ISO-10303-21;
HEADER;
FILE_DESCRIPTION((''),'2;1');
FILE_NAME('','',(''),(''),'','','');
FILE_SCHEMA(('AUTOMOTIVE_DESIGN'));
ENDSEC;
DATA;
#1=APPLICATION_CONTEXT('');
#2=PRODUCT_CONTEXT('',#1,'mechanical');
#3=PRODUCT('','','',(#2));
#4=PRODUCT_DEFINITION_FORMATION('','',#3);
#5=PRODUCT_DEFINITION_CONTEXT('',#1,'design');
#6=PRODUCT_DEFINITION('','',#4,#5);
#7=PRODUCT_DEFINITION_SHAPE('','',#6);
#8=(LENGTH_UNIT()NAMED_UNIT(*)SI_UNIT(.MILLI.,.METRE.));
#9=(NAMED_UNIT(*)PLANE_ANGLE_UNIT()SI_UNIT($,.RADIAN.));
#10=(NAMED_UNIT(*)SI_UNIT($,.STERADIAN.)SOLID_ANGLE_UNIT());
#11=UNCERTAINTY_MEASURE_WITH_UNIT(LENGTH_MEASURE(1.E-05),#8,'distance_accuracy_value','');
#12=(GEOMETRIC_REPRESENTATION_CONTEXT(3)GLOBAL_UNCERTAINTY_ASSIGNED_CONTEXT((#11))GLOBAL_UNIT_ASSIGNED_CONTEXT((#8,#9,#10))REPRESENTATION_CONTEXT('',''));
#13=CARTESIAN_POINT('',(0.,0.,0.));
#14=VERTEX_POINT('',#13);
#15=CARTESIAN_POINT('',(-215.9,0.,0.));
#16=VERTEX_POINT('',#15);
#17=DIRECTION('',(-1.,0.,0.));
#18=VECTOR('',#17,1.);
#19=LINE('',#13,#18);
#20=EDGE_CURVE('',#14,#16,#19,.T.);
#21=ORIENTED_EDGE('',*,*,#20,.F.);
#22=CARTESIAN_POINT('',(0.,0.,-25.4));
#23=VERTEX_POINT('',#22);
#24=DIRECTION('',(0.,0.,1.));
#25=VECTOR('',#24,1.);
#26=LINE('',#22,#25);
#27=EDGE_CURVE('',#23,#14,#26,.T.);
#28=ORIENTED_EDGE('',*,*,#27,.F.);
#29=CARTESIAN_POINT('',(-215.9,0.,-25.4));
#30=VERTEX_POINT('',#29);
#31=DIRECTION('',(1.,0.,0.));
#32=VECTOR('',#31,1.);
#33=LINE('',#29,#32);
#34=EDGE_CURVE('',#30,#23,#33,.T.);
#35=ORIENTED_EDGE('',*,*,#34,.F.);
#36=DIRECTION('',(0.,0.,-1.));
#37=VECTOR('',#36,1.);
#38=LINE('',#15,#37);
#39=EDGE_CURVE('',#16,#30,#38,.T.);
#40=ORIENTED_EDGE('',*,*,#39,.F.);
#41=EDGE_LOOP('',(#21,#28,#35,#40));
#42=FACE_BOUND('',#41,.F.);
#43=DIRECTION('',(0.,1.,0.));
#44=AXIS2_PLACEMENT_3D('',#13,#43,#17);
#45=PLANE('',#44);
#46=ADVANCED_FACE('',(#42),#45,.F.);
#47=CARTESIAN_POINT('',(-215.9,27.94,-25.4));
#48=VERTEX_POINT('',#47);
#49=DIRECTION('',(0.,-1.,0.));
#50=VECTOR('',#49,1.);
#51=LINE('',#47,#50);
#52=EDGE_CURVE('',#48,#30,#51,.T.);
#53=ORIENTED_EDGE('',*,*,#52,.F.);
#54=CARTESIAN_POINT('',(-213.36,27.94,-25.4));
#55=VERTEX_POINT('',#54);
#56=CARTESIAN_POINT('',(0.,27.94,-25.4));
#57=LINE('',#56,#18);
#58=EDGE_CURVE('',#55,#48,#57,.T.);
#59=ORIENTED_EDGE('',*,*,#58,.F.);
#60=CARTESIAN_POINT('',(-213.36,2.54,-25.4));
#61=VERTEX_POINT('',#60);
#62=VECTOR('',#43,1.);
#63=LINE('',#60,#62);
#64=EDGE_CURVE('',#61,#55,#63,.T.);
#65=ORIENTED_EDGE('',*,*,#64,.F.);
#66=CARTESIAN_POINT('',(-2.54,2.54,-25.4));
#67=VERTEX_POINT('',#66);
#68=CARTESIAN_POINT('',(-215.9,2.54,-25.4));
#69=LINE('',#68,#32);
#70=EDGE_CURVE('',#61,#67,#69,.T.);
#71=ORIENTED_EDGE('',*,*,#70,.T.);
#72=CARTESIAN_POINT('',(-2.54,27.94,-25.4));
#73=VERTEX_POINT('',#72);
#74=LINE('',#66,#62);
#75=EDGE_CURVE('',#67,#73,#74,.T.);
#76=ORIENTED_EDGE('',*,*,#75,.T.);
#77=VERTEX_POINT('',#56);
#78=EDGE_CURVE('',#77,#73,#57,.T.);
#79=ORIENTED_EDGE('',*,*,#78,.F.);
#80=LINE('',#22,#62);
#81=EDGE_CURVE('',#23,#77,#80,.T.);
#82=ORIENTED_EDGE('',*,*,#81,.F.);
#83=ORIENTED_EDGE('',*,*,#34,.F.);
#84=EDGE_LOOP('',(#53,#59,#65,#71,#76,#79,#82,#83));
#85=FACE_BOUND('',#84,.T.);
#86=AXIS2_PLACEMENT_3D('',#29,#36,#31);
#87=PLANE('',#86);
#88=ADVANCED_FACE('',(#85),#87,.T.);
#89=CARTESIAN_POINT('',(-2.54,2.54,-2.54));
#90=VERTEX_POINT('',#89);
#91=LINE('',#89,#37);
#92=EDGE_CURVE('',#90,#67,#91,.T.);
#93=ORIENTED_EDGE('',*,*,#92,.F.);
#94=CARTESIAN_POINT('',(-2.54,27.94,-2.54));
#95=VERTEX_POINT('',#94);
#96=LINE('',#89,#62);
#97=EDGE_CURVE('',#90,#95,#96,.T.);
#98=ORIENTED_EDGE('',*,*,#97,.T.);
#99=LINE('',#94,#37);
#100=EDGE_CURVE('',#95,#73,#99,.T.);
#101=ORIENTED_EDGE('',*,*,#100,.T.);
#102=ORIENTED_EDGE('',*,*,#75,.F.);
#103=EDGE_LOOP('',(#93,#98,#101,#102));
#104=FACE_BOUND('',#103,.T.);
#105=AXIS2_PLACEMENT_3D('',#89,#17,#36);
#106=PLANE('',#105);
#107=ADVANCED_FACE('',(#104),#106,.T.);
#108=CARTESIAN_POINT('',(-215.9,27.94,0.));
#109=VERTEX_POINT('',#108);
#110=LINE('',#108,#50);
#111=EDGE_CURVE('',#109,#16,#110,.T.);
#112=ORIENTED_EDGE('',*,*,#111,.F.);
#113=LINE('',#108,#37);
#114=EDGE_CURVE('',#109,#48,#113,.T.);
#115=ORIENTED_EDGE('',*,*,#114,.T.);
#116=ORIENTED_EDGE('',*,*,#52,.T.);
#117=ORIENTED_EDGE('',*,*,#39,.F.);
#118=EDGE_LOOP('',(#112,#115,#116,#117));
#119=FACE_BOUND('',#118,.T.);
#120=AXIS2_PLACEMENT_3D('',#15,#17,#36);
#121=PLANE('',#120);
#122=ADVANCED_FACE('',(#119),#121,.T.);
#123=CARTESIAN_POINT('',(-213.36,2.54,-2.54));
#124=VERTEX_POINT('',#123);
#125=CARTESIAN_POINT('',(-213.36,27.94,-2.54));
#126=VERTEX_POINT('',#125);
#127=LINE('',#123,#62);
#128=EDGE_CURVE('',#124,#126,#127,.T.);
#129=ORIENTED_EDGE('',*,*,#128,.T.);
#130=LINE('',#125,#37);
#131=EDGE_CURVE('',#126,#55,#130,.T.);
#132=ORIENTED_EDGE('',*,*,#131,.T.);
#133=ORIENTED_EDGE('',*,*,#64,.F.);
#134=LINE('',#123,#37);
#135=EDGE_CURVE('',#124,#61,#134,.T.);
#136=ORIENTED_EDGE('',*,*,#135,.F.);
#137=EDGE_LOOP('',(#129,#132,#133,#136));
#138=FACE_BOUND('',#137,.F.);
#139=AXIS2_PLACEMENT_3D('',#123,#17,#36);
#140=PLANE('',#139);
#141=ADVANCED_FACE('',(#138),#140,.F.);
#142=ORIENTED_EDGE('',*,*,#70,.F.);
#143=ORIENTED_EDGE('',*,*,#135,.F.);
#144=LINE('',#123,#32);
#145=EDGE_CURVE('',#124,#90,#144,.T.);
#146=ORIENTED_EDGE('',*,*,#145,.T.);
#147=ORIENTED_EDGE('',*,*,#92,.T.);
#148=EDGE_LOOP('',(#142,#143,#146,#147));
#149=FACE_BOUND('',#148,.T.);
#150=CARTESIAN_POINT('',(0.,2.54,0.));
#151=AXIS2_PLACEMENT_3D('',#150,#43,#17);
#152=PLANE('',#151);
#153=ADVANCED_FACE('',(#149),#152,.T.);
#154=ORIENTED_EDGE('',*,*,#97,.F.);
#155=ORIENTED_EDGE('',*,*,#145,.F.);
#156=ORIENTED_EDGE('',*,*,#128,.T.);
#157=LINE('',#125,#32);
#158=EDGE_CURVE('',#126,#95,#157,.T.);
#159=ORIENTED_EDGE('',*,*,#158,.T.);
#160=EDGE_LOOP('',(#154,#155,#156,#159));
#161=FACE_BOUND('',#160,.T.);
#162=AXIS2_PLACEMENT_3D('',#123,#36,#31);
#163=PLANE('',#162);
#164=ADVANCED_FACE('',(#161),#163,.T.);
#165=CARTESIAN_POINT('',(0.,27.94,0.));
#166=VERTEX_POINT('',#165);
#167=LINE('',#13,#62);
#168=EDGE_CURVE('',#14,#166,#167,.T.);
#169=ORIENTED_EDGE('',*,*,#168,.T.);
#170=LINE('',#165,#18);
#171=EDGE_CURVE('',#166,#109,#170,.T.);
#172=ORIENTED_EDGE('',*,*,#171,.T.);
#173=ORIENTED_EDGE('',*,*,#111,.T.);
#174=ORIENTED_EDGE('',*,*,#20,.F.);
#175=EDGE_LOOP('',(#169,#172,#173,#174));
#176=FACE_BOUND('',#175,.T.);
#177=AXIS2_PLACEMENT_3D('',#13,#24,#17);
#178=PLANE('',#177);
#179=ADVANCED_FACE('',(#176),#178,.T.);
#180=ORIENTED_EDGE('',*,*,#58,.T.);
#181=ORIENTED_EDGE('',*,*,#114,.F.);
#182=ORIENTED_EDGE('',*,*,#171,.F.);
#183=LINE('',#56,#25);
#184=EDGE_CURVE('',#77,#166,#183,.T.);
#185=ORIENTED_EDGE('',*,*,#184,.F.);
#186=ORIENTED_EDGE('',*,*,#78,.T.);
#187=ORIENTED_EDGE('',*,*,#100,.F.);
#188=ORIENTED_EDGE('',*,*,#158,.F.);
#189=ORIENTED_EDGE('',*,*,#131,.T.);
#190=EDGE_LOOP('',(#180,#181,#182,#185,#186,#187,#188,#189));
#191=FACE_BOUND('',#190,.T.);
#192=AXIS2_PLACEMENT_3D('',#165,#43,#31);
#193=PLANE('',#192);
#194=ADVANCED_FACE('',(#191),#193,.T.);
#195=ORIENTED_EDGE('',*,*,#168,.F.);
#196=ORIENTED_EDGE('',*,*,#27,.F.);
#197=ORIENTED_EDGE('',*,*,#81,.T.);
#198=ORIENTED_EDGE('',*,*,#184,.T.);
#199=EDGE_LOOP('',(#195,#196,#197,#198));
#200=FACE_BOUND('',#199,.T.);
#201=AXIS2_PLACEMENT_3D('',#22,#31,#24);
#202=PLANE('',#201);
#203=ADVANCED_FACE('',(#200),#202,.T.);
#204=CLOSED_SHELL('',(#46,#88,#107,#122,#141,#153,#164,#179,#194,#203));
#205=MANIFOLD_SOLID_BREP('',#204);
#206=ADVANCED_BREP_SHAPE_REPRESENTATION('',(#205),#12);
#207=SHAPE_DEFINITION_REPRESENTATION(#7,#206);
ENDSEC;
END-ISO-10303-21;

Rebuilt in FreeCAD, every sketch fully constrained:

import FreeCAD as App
import Part
import Sketcher
Q = App.Units.Quantity


def add_polygon(sketch, points):
    """Adds a closed chain of lines whose ends are joined by coincident constraints."""
    first, n = sketch.GeometryCount, len(points)
    for a, b in zip(points, points[1:] + points[:1]):
        sketch.addGeometry(Part.LineSegment(App.Vector(*a, 0), App.Vector(*b, 0)), False)
    for i in range(n):
        sketch.addConstraint(Sketcher.Constraint("Coincident", first + i, 2, first + (i + 1) % n, 1))

doc = App.newDocument("Part")
params = doc.addObject("Spreadsheet::Sheet", "Params")
for row, (alias, value) in enumerate([
    ("sketch1_height", "1 in"),
    ("sketch1_width", "8.5 in"),
    ("pad1_length", "0.1 in"),
    ("sketch2_width", "0.1 in"),
    ("sketch2_height", "1 in"),
    ("sketch2_width2", "8.5 in"),
    ("pad2_length", "1 in"),
], start=1):
    params.set(f"A{row}", alias)
    params.set(f"B{row}", "=" + value)
    params.setAlias(f"B{row}", alias)

body = doc.addObject("PartDesign::Body", "Body")

sketch1 = body.newObject("Sketcher::SketchObject", "Sketch")
sketch1.AttachmentSupport = (doc.getObject("XZ_Plane"), [""])
sketch1.MapMode = "FlatFace"
add_polygon(sketch1, [(-216, 0), (0, 0), (0, -25), (-216, -25)])
sketch1.addConstraint(Sketcher.Constraint("Horizontal", 0))
sketch1.addConstraint(Sketcher.Constraint("Vertical", 1))
sketch1.addConstraint(Sketcher.Constraint("Horizontal", 2))
sketch1.addConstraint(Sketcher.Constraint("Vertical", 3))
sketch1.addConstraint(Sketcher.Constraint("Coincident", 0, 2, -1, 1))
sketch1.addConstraint(Sketcher.Constraint("DistanceY", 1, 2, 1, 1, Q("1 in")))
sketch1.addConstraint(Sketcher.Constraint("DistanceX", 0, 1, 0, 2, Q("8.5 in")))
sketch1.setExpression("Constraints[9]", "Params.sketch1_height")
sketch1.setExpression("Constraints[10]", "Params.sketch1_width")
pad1 = body.newObject("PartDesign::Pad", "Pad")
pad1.Profile = sketch1
pad1.setExpression("Length", "Params.pad1_length")
pad1.Reversed = True

sketch2 = body.newObject("Sketcher::SketchObject", "Sketch001")
sketch2.AttachmentSupport = (doc.getObject("XZ_Plane"), [""])
sketch2.MapMode = "FlatFace"
sketch2.AttachmentOffset = App.Placement(App.Vector(0, 0, -0.1 * 25.4), App.Rotation())
add_polygon(sketch2, [(-215.9, 0), (0, 0), (0, -25.4), (-2.5, -25.4), (-2.5, -2.5), (-213.4, -2.5), (-213.4, -25.4), (-215.9, -25.4)])
sketch2.addConstraint(Sketcher.Constraint("Horizontal", 0))
sketch2.addConstraint(Sketcher.Constraint("Vertical", 1))
sketch2.addConstraint(Sketcher.Constraint("Horizontal", 2))
sketch2.addConstraint(Sketcher.Constraint("Vertical", 3))
sketch2.addConstraint(Sketcher.Constraint("Horizontal", 4))
sketch2.addConstraint(Sketcher.Constraint("Vertical", 5))
sketch2.addConstraint(Sketcher.Constraint("Horizontal", 6))
sketch2.addConstraint(Sketcher.Constraint("Vertical", 7))
sketch2.addConstraint(Sketcher.Constraint("Coincident", 0, 2, -1, 1))
sketch2.addConstraint(Sketcher.Constraint("Horizontal", 2, 2, 5, 2))
sketch2.addConstraint(Sketcher.Constraint("Equal", 2, 6))
sketch2.addConstraint(Sketcher.Constraint("DistanceX", 2, 2, 2, 1, Q("0.1 in")))
sketch2.addConstraint(Sketcher.Constraint("DistanceY", 3, 2, -1, 1, Q("0.1 in")))
sketch2.addConstraint(Sketcher.Constraint("DistanceY", 1, 2, 1, 1, Q("1 in")))
sketch2.addConstraint(Sketcher.Constraint("DistanceX", 0, 1, 0, 2, Q("8.5 in")))
sketch2.setExpression("Constraints[19]", "Params.sketch2_width")
sketch2.setExpression("Constraints[21]", "Params.sketch2_height")
sketch2.setExpression("Constraints[22]", "Params.sketch2_width2")
pad2 = body.newObject("PartDesign::Pad", "Pad001")
pad2.Profile = sketch2
pad2.setExpression("Length", "Params.pad2_length")
pad2.Reversed = True

doc.recompute()
